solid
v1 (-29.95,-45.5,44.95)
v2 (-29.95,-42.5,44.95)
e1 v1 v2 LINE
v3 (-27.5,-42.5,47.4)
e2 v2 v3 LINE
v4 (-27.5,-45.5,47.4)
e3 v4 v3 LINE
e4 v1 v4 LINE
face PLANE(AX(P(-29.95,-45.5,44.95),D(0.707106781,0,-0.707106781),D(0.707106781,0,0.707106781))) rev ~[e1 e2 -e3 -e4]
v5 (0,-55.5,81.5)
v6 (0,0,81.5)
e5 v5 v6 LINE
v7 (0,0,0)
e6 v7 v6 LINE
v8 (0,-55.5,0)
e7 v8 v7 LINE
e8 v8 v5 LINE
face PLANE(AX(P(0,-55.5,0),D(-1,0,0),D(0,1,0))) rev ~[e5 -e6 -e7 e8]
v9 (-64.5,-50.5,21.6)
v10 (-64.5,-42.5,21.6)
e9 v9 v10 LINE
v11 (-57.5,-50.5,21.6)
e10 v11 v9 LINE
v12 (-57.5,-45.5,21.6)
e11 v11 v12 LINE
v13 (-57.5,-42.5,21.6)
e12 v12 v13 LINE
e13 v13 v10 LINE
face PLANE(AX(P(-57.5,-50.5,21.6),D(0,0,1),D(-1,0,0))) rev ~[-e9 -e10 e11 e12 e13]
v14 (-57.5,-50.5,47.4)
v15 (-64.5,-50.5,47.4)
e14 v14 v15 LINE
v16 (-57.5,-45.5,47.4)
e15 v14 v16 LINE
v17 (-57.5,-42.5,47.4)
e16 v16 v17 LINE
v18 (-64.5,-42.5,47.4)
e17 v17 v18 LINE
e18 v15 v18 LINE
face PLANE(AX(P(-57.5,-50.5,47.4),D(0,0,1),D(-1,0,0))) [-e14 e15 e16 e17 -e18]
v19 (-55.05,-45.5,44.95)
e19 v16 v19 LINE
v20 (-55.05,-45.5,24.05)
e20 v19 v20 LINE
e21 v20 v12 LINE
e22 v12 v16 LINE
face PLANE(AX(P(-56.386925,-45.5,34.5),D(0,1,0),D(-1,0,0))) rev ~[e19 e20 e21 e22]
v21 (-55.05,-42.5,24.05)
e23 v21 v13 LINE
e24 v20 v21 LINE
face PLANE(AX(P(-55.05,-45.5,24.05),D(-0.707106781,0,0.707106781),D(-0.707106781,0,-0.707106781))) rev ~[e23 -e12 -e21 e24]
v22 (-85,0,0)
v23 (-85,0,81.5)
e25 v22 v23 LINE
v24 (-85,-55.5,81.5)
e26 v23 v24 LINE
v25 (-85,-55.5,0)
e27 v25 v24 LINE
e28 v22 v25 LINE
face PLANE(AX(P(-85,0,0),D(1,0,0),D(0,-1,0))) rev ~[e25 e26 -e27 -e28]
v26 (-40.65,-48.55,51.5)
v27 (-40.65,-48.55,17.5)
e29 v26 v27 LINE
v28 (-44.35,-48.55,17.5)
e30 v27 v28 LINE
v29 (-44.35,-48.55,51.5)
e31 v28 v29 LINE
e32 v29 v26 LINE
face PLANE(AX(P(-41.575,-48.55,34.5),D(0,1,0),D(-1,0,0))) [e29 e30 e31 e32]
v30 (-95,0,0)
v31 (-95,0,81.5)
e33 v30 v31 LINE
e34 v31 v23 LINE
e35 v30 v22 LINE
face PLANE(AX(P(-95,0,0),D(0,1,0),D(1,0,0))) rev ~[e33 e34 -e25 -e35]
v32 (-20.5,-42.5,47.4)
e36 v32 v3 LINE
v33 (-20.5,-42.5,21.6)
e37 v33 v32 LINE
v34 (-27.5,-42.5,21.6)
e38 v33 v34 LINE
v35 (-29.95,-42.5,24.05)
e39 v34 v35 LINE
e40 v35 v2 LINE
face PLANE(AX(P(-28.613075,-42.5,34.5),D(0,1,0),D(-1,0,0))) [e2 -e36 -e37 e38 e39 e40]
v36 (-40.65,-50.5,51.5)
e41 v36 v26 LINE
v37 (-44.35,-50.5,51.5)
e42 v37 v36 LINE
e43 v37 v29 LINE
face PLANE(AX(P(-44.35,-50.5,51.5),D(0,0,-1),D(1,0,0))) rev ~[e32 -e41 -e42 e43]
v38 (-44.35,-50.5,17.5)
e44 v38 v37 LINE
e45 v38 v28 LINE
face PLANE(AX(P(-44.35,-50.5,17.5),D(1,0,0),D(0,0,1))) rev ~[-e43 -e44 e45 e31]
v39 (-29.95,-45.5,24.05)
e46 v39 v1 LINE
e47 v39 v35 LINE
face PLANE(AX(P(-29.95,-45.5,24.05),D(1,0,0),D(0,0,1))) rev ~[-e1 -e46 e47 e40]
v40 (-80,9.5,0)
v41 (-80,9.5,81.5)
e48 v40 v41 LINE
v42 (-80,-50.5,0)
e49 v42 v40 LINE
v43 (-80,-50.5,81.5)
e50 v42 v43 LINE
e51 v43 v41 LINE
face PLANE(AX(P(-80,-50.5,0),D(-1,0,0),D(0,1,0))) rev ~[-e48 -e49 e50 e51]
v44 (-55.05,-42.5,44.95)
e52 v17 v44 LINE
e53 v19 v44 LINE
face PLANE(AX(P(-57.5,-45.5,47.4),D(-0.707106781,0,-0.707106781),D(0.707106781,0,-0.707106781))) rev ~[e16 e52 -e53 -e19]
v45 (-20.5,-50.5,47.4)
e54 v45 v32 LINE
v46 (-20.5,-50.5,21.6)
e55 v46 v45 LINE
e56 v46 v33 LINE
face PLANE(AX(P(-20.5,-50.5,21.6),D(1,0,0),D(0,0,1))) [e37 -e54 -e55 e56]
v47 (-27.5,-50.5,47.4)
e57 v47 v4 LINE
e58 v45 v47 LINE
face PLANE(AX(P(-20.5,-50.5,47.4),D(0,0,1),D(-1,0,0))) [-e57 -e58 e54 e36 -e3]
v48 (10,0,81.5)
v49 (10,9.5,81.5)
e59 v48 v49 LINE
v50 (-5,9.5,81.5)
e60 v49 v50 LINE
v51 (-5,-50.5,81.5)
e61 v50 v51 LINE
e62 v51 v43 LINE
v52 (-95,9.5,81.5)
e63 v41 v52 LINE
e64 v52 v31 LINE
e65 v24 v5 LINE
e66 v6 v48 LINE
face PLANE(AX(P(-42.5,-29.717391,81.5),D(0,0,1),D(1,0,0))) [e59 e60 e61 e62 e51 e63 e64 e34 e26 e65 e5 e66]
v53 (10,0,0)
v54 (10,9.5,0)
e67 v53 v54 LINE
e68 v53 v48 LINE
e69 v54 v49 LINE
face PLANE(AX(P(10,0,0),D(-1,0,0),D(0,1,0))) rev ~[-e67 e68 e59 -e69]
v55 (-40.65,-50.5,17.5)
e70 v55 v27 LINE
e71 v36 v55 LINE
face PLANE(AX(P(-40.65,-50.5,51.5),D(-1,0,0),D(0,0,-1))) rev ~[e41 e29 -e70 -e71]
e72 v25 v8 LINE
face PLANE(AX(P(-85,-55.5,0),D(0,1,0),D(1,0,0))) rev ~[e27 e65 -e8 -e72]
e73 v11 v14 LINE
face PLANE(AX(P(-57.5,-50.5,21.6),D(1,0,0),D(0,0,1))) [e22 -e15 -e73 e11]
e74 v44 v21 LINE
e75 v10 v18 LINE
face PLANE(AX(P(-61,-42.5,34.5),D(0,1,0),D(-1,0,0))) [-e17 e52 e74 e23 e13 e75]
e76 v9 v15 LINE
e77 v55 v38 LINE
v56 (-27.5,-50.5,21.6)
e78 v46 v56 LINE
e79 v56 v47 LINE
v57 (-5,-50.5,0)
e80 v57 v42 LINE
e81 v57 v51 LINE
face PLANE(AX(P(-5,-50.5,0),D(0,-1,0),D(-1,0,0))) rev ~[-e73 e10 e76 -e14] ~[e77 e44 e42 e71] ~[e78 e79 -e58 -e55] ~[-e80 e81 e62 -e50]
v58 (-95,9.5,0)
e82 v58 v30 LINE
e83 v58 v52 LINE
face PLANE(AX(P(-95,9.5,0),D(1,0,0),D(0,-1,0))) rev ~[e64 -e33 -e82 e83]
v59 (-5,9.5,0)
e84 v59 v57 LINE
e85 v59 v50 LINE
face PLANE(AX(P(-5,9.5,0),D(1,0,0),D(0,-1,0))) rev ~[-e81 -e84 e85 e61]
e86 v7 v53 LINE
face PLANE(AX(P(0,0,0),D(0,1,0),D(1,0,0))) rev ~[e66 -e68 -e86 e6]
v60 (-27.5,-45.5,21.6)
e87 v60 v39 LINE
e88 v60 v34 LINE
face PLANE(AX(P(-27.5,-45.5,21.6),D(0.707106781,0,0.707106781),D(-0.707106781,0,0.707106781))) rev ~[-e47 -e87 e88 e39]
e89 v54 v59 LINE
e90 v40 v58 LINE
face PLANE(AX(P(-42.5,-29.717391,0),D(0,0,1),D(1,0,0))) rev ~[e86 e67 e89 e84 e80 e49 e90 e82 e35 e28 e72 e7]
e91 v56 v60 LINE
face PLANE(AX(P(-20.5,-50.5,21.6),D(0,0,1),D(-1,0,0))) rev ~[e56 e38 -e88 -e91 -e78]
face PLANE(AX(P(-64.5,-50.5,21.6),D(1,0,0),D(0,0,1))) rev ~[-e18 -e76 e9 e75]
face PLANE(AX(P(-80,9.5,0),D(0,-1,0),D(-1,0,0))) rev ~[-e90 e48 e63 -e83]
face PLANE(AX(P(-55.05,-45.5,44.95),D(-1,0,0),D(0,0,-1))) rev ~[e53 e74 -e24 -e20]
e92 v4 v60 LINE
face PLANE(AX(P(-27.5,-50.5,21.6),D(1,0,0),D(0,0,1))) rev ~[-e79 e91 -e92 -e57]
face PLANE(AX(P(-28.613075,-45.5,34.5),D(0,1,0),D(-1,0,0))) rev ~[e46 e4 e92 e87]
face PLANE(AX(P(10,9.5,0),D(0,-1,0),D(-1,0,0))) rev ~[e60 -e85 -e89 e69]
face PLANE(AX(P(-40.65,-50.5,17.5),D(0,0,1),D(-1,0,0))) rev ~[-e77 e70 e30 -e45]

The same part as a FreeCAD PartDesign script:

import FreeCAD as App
import Part
import Sketcher

V = App.Vector

doc = App.newDocument("Part")
body = doc.addObject("PartDesign::Body", "Body")

sketch1 = body.newObject("Sketcher::SketchObject", "Sketch")
sketch1.AttachmentSupport = (doc.getObject("XY_Plane"), [""])
sketch1.MapMode = "FlatFace"
sketch1.addGeometry(Part.LineSegment(V(0, -56, 0), V(0, 0, 0)), False)
sketch1.addGeometry(Part.LineSegment(V(0, 0, 0), V(10, 0, 0)), False)
sketch1.addGeometry(Part.LineSegment(V(10, 0, 0), V(10, 10, 0)), False)
sketch1.addGeometry(Part.LineSegment(V(10, 10, 0), V(-5, 10, 0)), False)
sketch1.addGeometry(Part.LineSegment(V(-5, 10, 0), V(-5, -50, 0)), False)
sketch1.addGeometry(Part.LineSegment(V(-5, -50, 0), V(-80, -50, 0)), False)
sketch1.addGeometry(Part.LineSegment(V(-80, -50, 0), V(-80, 10, 0)), False)
sketch1.addGeometry(Part.LineSegment(V(-80, 10, 0), V(-95, 10, 0)), False)
sketch1.addGeometry(Part.LineSegment(V(-95, 10, 0), V(-95, 0, 0)), False)
sketch1.addGeometry(Part.LineSegment(V(-95, 0, 0), V(-85, 0, 0)), False)
sketch1.addGeometry(Part.LineSegment(V(-85, 0, 0), V(-85, -56, 0)), False)
sketch1.addGeometry(Part.LineSegment(V(-85, -56, 0), V(0, -56, 0)), False)
sketch1.addConstraint(Sketcher.Constraint("Coincident", 0, 2, 1, 1))
sketch1.addConstraint(Sketcher.Constraint("Coincident", 1, 2, 2, 1))
sketch1.addConstraint(Sketcher.Constraint("Coincident", 2, 2, 3, 1))
sketch1.addConstraint(Sketcher.Constraint("Coincident", 3, 2, 4, 1))
sketch1.addConstraint(Sketcher.Constraint("Coincident", 4, 2, 5, 1))
sketch1.addConstraint(Sketcher.Constraint("Coincident", 5, 2, 6, 1))
sketch1.addConstraint(Sketcher.Constraint("Coincident", 6, 2, 7, 1))
sketch1.addConstraint(Sketcher.Constraint("Coincident", 7, 2, 8, 1))
sketch1.addConstraint(Sketcher.Constraint("Coincident", 8, 2, 9, 1))
sketch1.addConstraint(Sketcher.Constraint("Coincident", 9, 2, 10, 1))
sketch1.addConstraint(Sketcher.Constraint("Coincident", 10, 2, 11, 1))
sketch1.addConstraint(Sketcher.Constraint("Coincident", 11, 2, 0, 1))
sketch1.addConstraint(Sketcher.Constraint("Vertical", 0))
sketch1.addConstraint(Sketcher.Constraint("Horizontal", 1))
sketch1.addConstraint(Sketcher.Constraint("Vertical", 2))
sketch1.addConstraint(Sketcher.Constraint("Horizontal", 3))
sketch1.addConstraint(Sketcher.Constraint("Vertical", 4))
sketch1.addConstraint(Sketcher.Constraint("Horizontal", 5))
sketch1.addConstraint(Sketcher.Constraint("Vertical", 6))
sketch1.addConstraint(Sketcher.Constraint("Horizontal", 7))
sketch1.addConstraint(Sketcher.Constraint("Vertical", 8))
sketch1.addConstraint(Sketcher.Constraint("Horizontal", 9))
sketch1.addConstraint(Sketcher.Constraint("Vertical", 10))
sketch1.addConstraint(Sketcher.Constraint("Horizontal", 11))
sketch1.addConstraint(Sketcher.Constraint("Coincident", 0, 2, -1, 1))
sketch1.addConstraint(Sketcher.Constraint("PointOnObject", 8, 2, -1))
sketch1.addConstraint(Sketcher.Constraint("Horizontal", 3, 2, 6, 2))
sketch1.addConstraint(Sketcher.Constraint("Equal", 3, 7))
sketch1.addConstraint(Sketcher.Constraint("Equal", 1, 9))
sketch1.addConstraint(Sketcher.Constraint("DistanceX", 1, 1, 1, 2, 10.0))
sketch1.addConstraint(Sketcher.Constraint("DistanceX", 3, 2, 3, 1, 15.0))
sketch1.addConstraint(Sketcher.Constraint("DistanceX", 5, 2, 5, 1, 75.0))
sketch1.addConstraint(Sketcher.Constraint("DistanceY", 4, 2, 4, 1, 60.0))
sketch1.addConstraint(Sketcher.Constraint("DistanceY", 0, 1, 0, 2, 55.5))
sketch1.addConstraint(Sketcher.Constraint("DistanceY", 2, 1, 2, 2, 9.5))
pad1 = body.newObject("PartDesign::Pad", "Pad")
pad1.Profile = sketch1
pad1.Length = 81.5

sketch2 = body.newObject("Sketcher::SketchObject", "Sketch001")
sketch2.AttachmentSupport = (doc.getObject("XZ_Plane"), [""])
sketch2.MapMode = "FlatFace"
sketch2.AttachmentOffset = App.Placement(V(0, 0, 50.5), App.Rotation())
sketch2.addGeometry(Part.LineSegment(V(-40.6, 51.5, 0), V(-40.6, 17.5, 0)), False)
sketch2.addGeometry(Part.LineSegment(V(-40.6, 17.5, 0), V(-44.4, 17.5, 0)), False)
sketch2.addGeometry(Part.LineSegment(V(-44.4, 17.5, 0), V(-44.4, 51.5, 0)), False)
sketch2.addGeometry(Part.LineSegment(V(-44.4, 51.5, 0), V(-40.6, 51.5, 0)), False)
sketch2.addConstraint(Sketcher.Constraint("Coincident", 0, 2, 1, 1))
sketch2.addConstraint(Sketcher.Constraint("Coincident", 1, 2, 2, 1))
sketch2.addConstraint(Sketcher.Constraint("Coincident", 2, 2, 3, 1))
sketch2.addConstraint(Sketcher.Constraint("Coincident", 3, 2, 0, 1))
sketch2.addConstraint(Sketcher.Constraint("Vertical", 0))
sketch2.addConstraint(Sketcher.Constraint("Horizontal", 1))
sketch2.addConstraint(Sketcher.Constraint("Vertical", 2))
sketch2.addConstraint(Sketcher.Constraint("Horizontal", 3))
sketch2.addConstraint(Sketcher.Constraint("DistanceY", 0, 2, 0, 1, 34.0))
sketch2.addConstraint(Sketcher.Constraint("DistanceX", 1, 2, 1, 1, 3.7))
sketch2.addConstraint(Sketcher.Constraint("DistanceY", -1, 1, 0, 2, 17.5))
sketch2.addConstraint(Sketcher.Constraint("DistanceX", 0, 2, -1, 1, 40.65))
pad2 = body.newObject("PartDesign::Pad", "Pad001")
pad2.Profile = sketch2
pad2.Length = 1.95
pad2.Reversed = True

sketch3 = body.newObject("Sketcher::SketchObject", "Sketch002")
sketch3.AttachmentSupport = (doc.getObject("XZ_Plane"), [""])
sketch3.MapMode = "FlatFace"
sketch3.AttachmentOffset = App.Placement(V(0, 0, 50.5), App.Rotation())
sketch3.addGeometry(Part.LineSegment(V(-58, 47, 0), V(-58, 22, 0)), False)
sketch3.addGeometry(Part.LineSegment(V(-58, 22, 0), V(-64, 22, 0)), False)
sketch3.addGeometry(Part.LineSegment(V(-64, 22, 0), V(-64, 47, 0)), False)
sketch3.addGeometry(Part.LineSegment(V(-64, 47, 0), V(-58, 47, 0)), False)
sketch3.addGeometry(Part.LineSegment(V(-20, 47, 0), V(-20, 22, 0)), False)
sketch3.addGeometry(Part.LineSegment(V(-20, 22, 0), V(-28, 22, 0)), False)
sketch3.addGeometry(Part.LineSegment(V(-28, 22, 0), V(-28, 47, 0)), False)
sketch3.addGeometry(Part.LineSegment(V(-28, 47, 0), V(-20, 47, 0)), False)
sketch3.addConstraint(Sketcher.Constraint("Coincident", 0, 2, 1, 1))
sketch3.addConstraint(Sketcher.Constraint("Coincident", 1, 2, 2, 1))
sketch3.addConstraint(Sketcher.Constraint("Coincident", 2, 2, 3, 1))
sketch3.addConstraint(Sketcher.Constraint("Coincident", 3, 2, 0, 1))
sketch3.addConstraint(Sketcher.Constraint("Coincident", 4, 2, 5, 1))
sketch3.addConstraint(Sketcher.Constraint("Coincident", 5, 2, 6, 1))
sketch3.addConstraint(Sketcher.Constraint("Coincident", 6, 2, 7, 1))
sketch3.addConstraint(Sketcher.Constraint("Coincident", 7, 2, 4, 1))
sketch3.addConstraint(Sketcher.Constraint("Vertical", 0))
sketch3.addConstraint(Sketcher.Constraint("Horizontal", 1))
sketch3.addConstraint(Sketcher.Constraint("Vertical", 2))
sketch3.addConstraint(Sketcher.Constraint("Horizontal", 3))
sketch3.addConstraint(Sketcher.Constraint("Vertical", 4))
sketch3.addConstraint(Sketcher.Constraint("Horizontal", 5))
sketch3.addConstraint(Sketcher.Constraint("Vertical", 6))
sketch3.addConstraint(Sketcher.Constraint("Horizontal", 7))
sketch3.addConstraint(Sketcher.Constraint("Horizontal", 1, 2, 4, 2))
sketch3.addConstraint(Sketcher.Constraint("Horizontal", 3, 2, 6, 2))
sketch3.addConstraint(Sketcher.Constraint("Equal", 3, 5))
sketch3.addConstraint(Sketcher.Constraint("DistanceX", 1, 2, 1, 1, 7.0))
sketch3.addConstraint(Sketcher.Constraint("DistanceY", 0, 2, 0, 1, 25.8))
sketch3.addConstraint(Sketcher.Constraint("DistanceX", 0, 2, 4, 2, 37.0))
sketch3.addConstraint(Sketcher.Constraint("DistanceX", 0, 2, -1, 1, 57.5))
sketch3.addConstraint(Sketcher.Constraint("DistanceY", -1, 1, 0, 2, 21.6))
pad3 = body.newObject("PartDesign::Pad", "Pad002")
pad3.Profile = sketch3
pad3.Length = 8
pad3.Reversed = True

sketch4 = body.newObject("Sketcher::SketchObject", "Sketch003")
sketch4.AttachmentSupport = (doc.getObject("XZ_Plane"), [""])
sketch4.MapMode = "FlatFace"
sketch4.AttachmentOffset = App.Placement(V(0, 0, 45.5), App.Rotation())
sketch4.addGeometry(Part.LineSegment(V(-29.9, 24.1, 0), V(-29.9, 45, 0)), False)
sketch4.addGeometry(Part.LineSegment(V(-29.9, 45, 0), V(-27.5, 47.4, 0)), False)
sketch4.addGeometry(Part.LineSegment(V(-27.5, 47.4, 0), V(-27.5, 21.6, 0)), False)
sketch4.addGeometry(Part.LineSegment(V(-27.5, 21.6, 0), V(-29.9, 24.1, 0)), False)
sketch4.addGeometry(Part.LineSegment(V(-57.5, 21.6, 0), V(-57.5, 47.4, 0)), False)
sketch4.addGeometry(Part.LineSegment(V(-57.5, 47.4, 0), V(-55, 45, 0)), False)
sketch4.addGeometry(Part.LineSegment(V(-55, 45, 0), V(-55, 24.1, 0)), False)
sketch4.addGeometry(Part.LineSegment(V(-55, 24.1, 0), V(-57.5, 21.6, 0)), False)
sketch4.addConstraint(Sketcher.Constraint("Coincident", 0, 2, 1, 1))
sketch4.addConstraint(Sketcher.Constraint("Coincident", 1, 2, 2, 1))
sketch4.addConstraint(Sketcher.Constraint("Coincident", 2, 2, 3, 1))
sketch4.addConstraint(Sketcher.Constraint("Coincident", 3, 2, 0, 1))
sketch4.addConstraint(Sketcher.Constraint("Coincident", 4, 2, 5, 1))
sketch4.addConstraint(Sketcher.Constraint("Coincident", 5, 2, 6, 1))
sketch4.addConstraint(Sketcher.Constraint("Coincident", 6, 2, 7, 1))
sketch4.addConstraint(Sketcher.Constraint("Coincident", 7, 2, 4, 1))
sketch4.addConstraint(Sketcher.Constraint("Vertical", 0))
sketch4.addConstraint(Sketcher.Constraint("Vertical", 2))
sketch4.addConstraint(Sketcher.Constraint("Vertical", 4))
sketch4.addConstraint(Sketcher.Constraint("Vertical", 6))
sketch4.addConstraint(Sketcher.Constraint("Perpendicular", 1, 3))
sketch4.addConstraint(Sketcher.Constraint("Parallel", 3, 5))
sketch4.addConstraint(Sketcher.Constraint("Perpendicular", 5, 7))
sketch4.addConstraint(Sketcher.Constraint("Horizontal", 1, 2, 4, 2))
sketch4.addConstraint(Sketcher.Constraint("Horizontal", 0, 2, 5, 2))
sketch4.addConstraint(Sketcher.Constraint("Horizontal", 3, 2, 6, 2))
sketch4.addConstraint(Sketcher.Constraint("Horizontal", 2, 2, 7, 2))
sketch4.addConstraint(Sketcher.Constraint("DistanceY", 0, 1, 0, 2, 20.9))
sketch4.addConstraint(Sketcher.Constraint("DistanceY", 2, 2, 2, 1, 25.8))
sketch4.addConstraint(Sketcher.Constraint("DistanceX", 4, 2, 1, 2, 30.0))
sketch4.addConstraint(Sketcher.Constraint("DistanceX", 1, 2, -1, 1, 27.5))
sketch4.addConstraint(Sketcher.Constraint("DistanceY", -1, 1, 1, 2, 47.4))
pad4 = body.newObject("PartDesign::Pad", "Pad003")
pad4.Profile = sketch4
pad4.Length = 3
pad4.Reversed = True

doc.recompute()
